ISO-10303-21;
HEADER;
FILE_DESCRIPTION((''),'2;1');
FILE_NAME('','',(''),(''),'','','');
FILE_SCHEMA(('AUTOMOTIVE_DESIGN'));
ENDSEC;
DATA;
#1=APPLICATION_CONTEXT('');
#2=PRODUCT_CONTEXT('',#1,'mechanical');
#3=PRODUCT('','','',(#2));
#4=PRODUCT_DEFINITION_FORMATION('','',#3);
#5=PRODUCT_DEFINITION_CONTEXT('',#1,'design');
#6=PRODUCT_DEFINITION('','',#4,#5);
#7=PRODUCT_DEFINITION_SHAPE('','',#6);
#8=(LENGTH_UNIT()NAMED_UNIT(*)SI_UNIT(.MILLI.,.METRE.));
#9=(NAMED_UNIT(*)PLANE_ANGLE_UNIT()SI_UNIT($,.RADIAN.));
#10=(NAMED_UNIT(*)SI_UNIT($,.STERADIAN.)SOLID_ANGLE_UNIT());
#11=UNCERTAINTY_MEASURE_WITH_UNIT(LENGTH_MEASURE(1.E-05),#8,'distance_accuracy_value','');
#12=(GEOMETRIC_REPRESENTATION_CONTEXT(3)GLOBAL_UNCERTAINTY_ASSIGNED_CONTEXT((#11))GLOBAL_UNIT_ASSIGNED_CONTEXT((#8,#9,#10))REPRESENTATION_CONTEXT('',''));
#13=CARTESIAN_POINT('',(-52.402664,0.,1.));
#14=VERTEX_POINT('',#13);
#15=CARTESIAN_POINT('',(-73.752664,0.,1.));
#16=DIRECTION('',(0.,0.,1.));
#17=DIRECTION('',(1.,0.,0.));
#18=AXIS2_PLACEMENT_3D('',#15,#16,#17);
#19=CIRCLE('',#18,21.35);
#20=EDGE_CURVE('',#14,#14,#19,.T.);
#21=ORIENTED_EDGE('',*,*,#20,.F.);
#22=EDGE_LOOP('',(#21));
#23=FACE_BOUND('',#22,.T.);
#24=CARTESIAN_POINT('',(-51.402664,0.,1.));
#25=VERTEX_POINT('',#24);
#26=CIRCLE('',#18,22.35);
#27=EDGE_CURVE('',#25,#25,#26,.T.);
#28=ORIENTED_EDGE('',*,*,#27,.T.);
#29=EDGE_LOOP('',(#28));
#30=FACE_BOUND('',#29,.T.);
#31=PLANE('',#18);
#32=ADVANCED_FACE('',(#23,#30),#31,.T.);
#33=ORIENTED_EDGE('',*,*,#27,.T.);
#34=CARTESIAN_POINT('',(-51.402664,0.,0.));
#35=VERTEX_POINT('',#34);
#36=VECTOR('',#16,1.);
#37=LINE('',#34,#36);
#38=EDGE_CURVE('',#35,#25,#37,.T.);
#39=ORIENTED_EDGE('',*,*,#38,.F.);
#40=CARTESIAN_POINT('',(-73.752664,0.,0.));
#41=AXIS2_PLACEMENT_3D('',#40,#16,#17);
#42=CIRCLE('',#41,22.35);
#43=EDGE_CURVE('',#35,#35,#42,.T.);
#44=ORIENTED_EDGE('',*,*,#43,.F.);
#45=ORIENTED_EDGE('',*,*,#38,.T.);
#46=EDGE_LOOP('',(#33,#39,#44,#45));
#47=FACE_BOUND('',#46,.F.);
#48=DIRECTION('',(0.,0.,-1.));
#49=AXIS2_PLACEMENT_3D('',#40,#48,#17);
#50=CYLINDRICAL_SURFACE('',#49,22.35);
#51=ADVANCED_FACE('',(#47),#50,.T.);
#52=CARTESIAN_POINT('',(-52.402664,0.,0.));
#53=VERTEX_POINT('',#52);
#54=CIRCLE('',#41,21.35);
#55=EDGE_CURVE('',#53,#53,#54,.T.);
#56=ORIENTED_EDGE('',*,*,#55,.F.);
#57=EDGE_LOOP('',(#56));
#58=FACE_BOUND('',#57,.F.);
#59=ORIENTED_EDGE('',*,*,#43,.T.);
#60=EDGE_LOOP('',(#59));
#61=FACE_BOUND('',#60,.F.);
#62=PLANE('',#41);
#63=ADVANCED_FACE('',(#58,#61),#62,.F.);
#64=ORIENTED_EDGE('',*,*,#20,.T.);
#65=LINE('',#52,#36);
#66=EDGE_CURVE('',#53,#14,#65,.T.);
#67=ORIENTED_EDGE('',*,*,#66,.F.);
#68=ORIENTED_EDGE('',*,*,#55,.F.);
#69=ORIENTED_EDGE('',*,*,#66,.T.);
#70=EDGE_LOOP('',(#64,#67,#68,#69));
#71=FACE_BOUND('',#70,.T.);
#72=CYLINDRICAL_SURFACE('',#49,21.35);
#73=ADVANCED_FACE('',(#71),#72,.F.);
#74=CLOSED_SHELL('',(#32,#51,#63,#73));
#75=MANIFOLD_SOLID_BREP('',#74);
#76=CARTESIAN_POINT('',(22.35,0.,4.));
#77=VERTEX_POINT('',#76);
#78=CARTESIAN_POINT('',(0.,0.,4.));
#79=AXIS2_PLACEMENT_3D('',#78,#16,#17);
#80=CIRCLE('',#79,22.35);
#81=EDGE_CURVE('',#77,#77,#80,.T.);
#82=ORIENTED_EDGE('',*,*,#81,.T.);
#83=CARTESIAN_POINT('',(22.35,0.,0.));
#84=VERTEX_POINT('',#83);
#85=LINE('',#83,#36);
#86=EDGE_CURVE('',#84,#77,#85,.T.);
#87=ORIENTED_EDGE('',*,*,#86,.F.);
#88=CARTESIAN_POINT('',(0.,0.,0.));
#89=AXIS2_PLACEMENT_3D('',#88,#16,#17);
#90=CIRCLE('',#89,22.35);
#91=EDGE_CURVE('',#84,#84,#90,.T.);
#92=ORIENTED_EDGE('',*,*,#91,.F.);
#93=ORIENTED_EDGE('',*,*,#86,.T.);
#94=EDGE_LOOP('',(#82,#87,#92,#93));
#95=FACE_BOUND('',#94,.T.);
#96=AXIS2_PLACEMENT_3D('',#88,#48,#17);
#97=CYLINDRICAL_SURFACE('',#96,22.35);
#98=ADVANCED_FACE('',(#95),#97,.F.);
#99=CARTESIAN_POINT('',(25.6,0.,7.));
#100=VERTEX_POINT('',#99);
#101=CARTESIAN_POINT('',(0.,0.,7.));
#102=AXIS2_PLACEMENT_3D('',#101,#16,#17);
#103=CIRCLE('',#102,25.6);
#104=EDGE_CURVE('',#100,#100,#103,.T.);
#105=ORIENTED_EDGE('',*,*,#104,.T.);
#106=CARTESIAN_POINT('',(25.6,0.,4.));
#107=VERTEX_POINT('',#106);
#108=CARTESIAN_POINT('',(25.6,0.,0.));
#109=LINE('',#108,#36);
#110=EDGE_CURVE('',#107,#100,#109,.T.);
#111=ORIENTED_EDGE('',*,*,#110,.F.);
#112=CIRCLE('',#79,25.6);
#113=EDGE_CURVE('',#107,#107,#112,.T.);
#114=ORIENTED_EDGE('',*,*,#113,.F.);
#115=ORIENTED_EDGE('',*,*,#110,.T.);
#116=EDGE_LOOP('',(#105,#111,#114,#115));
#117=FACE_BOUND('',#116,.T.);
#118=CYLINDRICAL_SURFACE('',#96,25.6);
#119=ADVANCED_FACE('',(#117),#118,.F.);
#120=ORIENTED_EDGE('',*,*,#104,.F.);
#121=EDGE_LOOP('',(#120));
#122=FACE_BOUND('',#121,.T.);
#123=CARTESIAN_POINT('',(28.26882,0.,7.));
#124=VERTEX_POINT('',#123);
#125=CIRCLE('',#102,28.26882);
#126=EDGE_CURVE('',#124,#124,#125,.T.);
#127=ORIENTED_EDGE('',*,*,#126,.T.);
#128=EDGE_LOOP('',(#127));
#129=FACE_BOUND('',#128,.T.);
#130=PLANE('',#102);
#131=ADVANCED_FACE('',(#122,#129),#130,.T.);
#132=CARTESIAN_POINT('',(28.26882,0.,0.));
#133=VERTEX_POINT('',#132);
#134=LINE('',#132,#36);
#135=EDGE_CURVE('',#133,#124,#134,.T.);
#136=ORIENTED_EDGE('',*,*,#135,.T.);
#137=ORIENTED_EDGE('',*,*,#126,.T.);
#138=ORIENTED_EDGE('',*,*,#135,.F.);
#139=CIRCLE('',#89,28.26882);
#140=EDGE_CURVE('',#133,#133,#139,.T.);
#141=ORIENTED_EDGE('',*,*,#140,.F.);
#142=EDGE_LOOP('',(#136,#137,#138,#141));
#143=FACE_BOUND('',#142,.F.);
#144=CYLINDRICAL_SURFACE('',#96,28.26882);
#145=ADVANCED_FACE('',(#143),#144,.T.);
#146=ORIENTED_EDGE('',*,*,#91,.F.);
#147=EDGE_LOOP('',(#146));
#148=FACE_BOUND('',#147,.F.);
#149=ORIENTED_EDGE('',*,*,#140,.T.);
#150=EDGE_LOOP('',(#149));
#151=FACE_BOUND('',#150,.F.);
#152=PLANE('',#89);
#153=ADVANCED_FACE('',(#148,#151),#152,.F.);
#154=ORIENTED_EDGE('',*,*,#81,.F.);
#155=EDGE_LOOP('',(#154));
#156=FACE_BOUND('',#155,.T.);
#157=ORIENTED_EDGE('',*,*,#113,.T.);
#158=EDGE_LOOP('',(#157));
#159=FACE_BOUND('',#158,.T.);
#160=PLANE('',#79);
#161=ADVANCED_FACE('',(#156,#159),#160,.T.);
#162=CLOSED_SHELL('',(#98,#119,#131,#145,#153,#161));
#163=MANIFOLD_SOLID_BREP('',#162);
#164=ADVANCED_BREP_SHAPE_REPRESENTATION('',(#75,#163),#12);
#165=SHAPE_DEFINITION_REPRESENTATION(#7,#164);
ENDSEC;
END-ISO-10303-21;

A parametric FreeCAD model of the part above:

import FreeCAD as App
import Part
import Sketcher

V = App.Vector
Q = App.Units.Quantity

doc = App.newDocument("Part")
body = doc.addObject("PartDesign::Body", "Body")

# Sketch on XY plane
sketch1 = body.newObject("Sketcher::SketchObject", "Sketch")
sketch1.AttachmentSupport = (doc.getObject("XY_Plane"), [""])
sketch1.MapMode = "FlatFace"
sketch1.addGeometry([
    Part.Circle(V(0, 0, 0), V(0, 0, 1), 26),
    Part.Circle(V(0, 0, 0), V(0, 0, 1), 22),
], False)
sketch1.addConstraint([
    Sketcher.Constraint("Coincident", 0, 3, -1, 1),
    Sketcher.Constraint("Coincident", 1, 3, -1, 1),
    Sketcher.Constraint("Diameter", 0, Q("51.2 mm")),
    Sketcher.Constraint("Diameter", 1, Q("44.7 mm")),
])
pad1 = body.newObject("PartDesign::Pad", "Pad")
pad1.Profile = sketch1
pad1.Length = 4

# Sketch on XY plane
sketch2 = body.newObject("Sketcher::SketchObject", "Sketch001")
sketch2.AttachmentSupport = (doc.getObject("XY_Plane"), [""])
sketch2.MapMode = "FlatFace"
sketch2.addGeometry([
    Part.Circle(V(0, 0, 0), V(0, 0, 1), 28),
    Part.Circle(V(0, 0, 0), V(0, 0, 1), 26),
], False)
sketch2.addConstraint([
    Sketcher.Constraint("Coincident", 0, 3, -1, 1),
    Sketcher.Constraint("Coincident", 1, 3, -1, 1),
    Sketcher.Constraint("Diameter", 1, Q("51.2 mm")),
    Sketcher.Constraint("Diameter", 0, Q("56.53764 mm")),
])
pad2 = body.newObject("PartDesign::Pad", "Pad001")
pad2.Profile = sketch2
pad2.Length = 7
body2 = doc.addObject("PartDesign::Body", "Body001")

# Sketch on XY plane
sketch3 = body2.newObject("Sketcher::SketchObject", "Sketch002")
sketch3.AttachmentSupport = (doc.getObject("XY_Plane001"), [""])
sketch3.MapMode = "FlatFace"
sketch3.addGeometry([
    Part.Circle(V(-74, 0, 0), V(0, 0, 1), 22),
    Part.Circle(V(-74, 0, 0), V(0, 0, 1), 21),
], False)
sketch3.addConstraint([
    Sketcher.Constraint("Coincident", 1, 3, 0, 3),
    Sketcher.Constraint("PointOnObject", 0, 3, -1),
    Sketcher.Constraint("Diameter", 0, Q("44.7 mm")),
    Sketcher.Constraint("Diameter", 1, Q("42.7 mm")),
    Sketcher.Constraint("DistanceX", 0, 3, -1, 1, Q("73.752664 mm")),
])
pad3 = body2.newObject("PartDesign::Pad", "Pad002")
pad3.Profile = sketch3
pad3.Length = 1

doc.recompute()
